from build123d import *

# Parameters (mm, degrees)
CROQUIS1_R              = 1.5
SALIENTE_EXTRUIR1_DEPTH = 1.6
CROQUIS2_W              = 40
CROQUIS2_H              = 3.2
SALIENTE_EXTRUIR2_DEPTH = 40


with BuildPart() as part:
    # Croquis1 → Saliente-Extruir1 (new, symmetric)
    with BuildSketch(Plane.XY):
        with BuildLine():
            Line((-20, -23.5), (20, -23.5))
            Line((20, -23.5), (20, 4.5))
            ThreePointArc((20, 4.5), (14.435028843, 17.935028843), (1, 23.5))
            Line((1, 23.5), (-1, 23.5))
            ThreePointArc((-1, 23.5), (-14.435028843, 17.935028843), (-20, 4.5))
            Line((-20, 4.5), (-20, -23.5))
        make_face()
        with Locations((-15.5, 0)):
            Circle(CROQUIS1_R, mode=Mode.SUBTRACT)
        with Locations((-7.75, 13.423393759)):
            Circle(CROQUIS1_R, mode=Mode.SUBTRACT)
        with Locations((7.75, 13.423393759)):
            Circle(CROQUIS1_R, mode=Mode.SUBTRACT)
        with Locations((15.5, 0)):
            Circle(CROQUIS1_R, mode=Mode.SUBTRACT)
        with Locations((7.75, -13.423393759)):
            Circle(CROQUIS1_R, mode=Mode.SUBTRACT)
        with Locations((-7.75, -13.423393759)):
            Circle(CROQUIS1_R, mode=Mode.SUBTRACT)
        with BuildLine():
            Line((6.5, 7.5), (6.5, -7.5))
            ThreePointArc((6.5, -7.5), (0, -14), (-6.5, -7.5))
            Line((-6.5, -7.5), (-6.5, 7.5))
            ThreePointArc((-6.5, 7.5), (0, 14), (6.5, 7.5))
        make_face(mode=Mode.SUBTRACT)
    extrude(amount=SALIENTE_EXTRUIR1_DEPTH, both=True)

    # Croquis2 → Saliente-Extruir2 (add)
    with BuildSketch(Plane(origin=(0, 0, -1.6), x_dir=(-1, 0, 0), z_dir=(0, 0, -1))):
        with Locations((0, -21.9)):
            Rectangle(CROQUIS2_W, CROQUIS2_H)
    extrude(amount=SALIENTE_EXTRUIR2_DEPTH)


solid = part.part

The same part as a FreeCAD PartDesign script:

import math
import FreeCAD as App
import Part
import Sketcher
Q = App.Units.Quantity

doc = App.newDocument("Part")
params = doc.addObject("Spreadsheet::Sheet", "Params")
for row, (alias, value) in enumerate([
    ("sketch1_diameter", "3 mm"),
    ("sketch1_radius", "19 mm"),
    ("sketch1_radius2", "6.5 mm"),
    ("sketch1_width", "40 mm"),
    ("sketch1_height", "28 mm"),
    ("pad1_length", "3.2 mm"),
    ("sketch2_width", "40 mm"),
    ("sketch2_height", "3.2 mm"),
    ("pad2_length", "40 mm"),
], start=1):
    params.set(f"A{row}", alias)
    params.set(f"B{row}", "=" + value)
    params.setAlias(f"B{row}", alias)

body = doc.addObject("PartDesign::Body", "Body")

sketch1 = body.newObject("Sketcher::SketchObject", "Sketch")
sketch1.AttachmentSupport = (doc.getObject("XY_Plane"), [""])
sketch1.MapMode = "FlatFace"
sketch1.addGeometry([
    Part.LineSegment(App.Vector(-20, -23.5, 0), App.Vector(20, -23.5, 0)),
    Part.LineSegment(App.Vector(20, -23.5, 0), App.Vector(20, 4.5, 0)),
    Part.ArcOfCircle(Part.Circle(App.Vector(1, 4.5, 0), App.Vector(0, 0, 1), 19), math.radians(0), math.radians(90)),
    Part.LineSegment(App.Vector(1, 23.5, 0), App.Vector(-1, 23.5, 0)),
    Part.ArcOfCircle(Part.Circle(App.Vector(-1, 4.5, 0), App.Vector(0, 0, 1), 19), math.radians(90), math.radians(180)),
    Part.LineSegment(App.Vector(-20, 4.5, 0), App.Vector(-20, -23.5, 0)),
    Part.Circle(App.Vector(-7.8, -13.4, 0), App.Vector(0, 0, 1), 1.5),
    Part.Circle(App.Vector(7.8, -13.4, 0), App.Vector(0, 0, 1), 1.5),
    Part.Circle(App.Vector(-15.5, 0, 0), App.Vector(0, 0, 1), 1.5),
    Part.Circle(App.Vector(-7.8, 13.4, 0), App.Vector(0, 0, 1), 1.5),
    Part.ArcOfCircle(Part.Circle(App.Vector(0, 7.5, 0), App.Vector(0, 0, 1), 6.5), math.radians(0), math.radians(180)),
    Part.LineSegment(App.Vector(6.5, 7.5, 0), App.Vector(6.5, -7.5, 0)),
    Part.ArcOfCircle(Part.Circle(App.Vector(0, -7.5, 0), App.Vector(0, 0, 1), 6.5), math.radians(180), math.radians(360)),
    Part.LineSegment(App.Vector(-6.5, -7.5, 0), App.Vector(-6.5, 7.5, 0)),
    Part.Circle(App.Vector(15.5, 0, 0), App.Vector(0, 0, 1), 1.5),
    Part.Circle(App.Vector(7.8, 13.4, 0), App.Vector(0, 0, 1), 1.5),
], False)
sketch1.addConstraint([
    Sketcher.Constraint("Coincident", 0, 2, 1, 1),
    Sketcher.Constraint("Tangent", 1, 2, 2, 1),
    Sketcher.Constraint("Tangent", 2, 2, 3, 1),
    Sketcher.Constraint("Tangent", 3, 2, 4, 1),
    Sketcher.Constraint("Tangent", 4, 2, 5, 1),
    Sketcher.Constraint("Coincident", 5, 2, 0, 1),
    Sketcher.Constraint("Tangent", 10, 1, 11, 1),
    Sketcher.Constraint("Tangent", 11, 2, 12, 2),
    Sketcher.Constraint("Tangent", 12, 1, 13, 1),
    Sketcher.Constraint("Tangent", 13, 2, 10, 2),
    Sketcher.Constraint("Horizontal", 0),
    Sketcher.Constraint("Vertical", 1),
    Sketcher.Constraint("Horizontal", 3),
    Sketcher.Constraint("Vertical", 5),
    Sketcher.Constraint("Vertical", 11),
    Sketcher.Constraint("Vertical", 13),
    Sketcher.Constraint("Equal", 2, 4),
    Sketcher.Constraint("Equal", 6, 7),
    Sketcher.Constraint("Equal", 7, 8),
    Sketcher.Constraint("Equal", 8, 9),
    Sketcher.Constraint("Equal", 9, 14),
    Sketcher.Constraint("Equal", 14, 15),
    Sketcher.Constraint("Symmetric", 7, 3, 9, 3, -1, 1),
    Sketcher.Constraint("Symmetric", 10, 3, 12, 3, -1, 1),
    Sketcher.Constraint("Symmetric", 8, 3, 14, 3, -1, 1),
    Sketcher.Constraint("Symmetric", 6, 3, 15, 3, -1, 1),
    Sketcher.Constraint("Symmetric", 6, 3, 7, 3, -2),
    Sketcher.Constraint("PointOnObject", 8, 3, -1),
    Sketcher.Constraint("Diameter", 6, Q("3 mm")),
    Sketcher.Constraint("Radius", 2, Q("19 mm")),
    Sketcher.Constraint("Radius", 10, Q("6.5 mm")),
    Sketcher.Constraint("DistanceX", 0, 1, 0, 2, Q("40 mm")),
    Sketcher.Constraint("DistanceY", 1, 1, 1, 2, Q("28 mm")),
    Sketcher.Constraint("DistanceY", 11, 2, 11, 1, Q("15 mm")),
    Sketcher.Constraint("DistanceX", -1, 1, 2, 3, Q("1 mm")),
    Sketcher.Constraint("DistanceY", 2, 3, 10, 3, Q("3 mm")),
    Sketcher.Constraint("DistanceX", 10, 1, 14, 3, Q("9 mm")),
    Sketcher.Constraint("DistanceX", 6, 3, 7, 3, Q("15.5 mm")),
    Sketcher.Constraint("DistanceY", 6, 3, -1, 1, Q("13.423394 mm")),
])
sketch1.setExpression("Constraints[28]", "Params.sketch1_diameter")
sketch1.setExpression("Constraints[29]", "Params.sketch1_radius")
sketch1.setExpression("Constraints[30]", "Params.sketch1_radius2")
sketch1.setExpression("Constraints[31]", "Params.sketch1_width")
sketch1.setExpression("Constraints[32]", "Params.sketch1_height")
pad1 = body.newObject("PartDesign::Pad", "Pad")
pad1.Profile = sketch1
pad1.setExpression("Length", "Params.pad1_length")
pad1.Midplane = True

sketch2 = body.newObject("Sketcher::SketchObject", "Sketch001")
sketch2.AttachmentSupport = (doc.getObject("XY_Plane"), [""])
sketch2.MapMode = "FlatFace"
sketch2.AttachmentOffset = App.Placement(App.Vector(0, 0, -1.6), App.Rotation())
sketch2.addGeometry([
    Part.LineSegment(App.Vector(20, -20.3, 0), App.Vector(20, -23.5, 0)),
    Part.LineSegment(App.Vector(20, -23.5, 0), App.Vector(-20, -23.5, 0)),
    Part.LineSegment(App.Vector(-20, -23.5, 0), App.Vector(-20, -20.3, 0)),
    Part.LineSegment(App.Vector(-20, -20.3, 0), App.Vector(20, -20.3, 0)),
], False)
sketch2.addConstraint([
    Sketcher.Constraint("Coincident", 0, 2, 1, 1),
    Sketcher.Constraint("Coincident", 1, 2, 2, 1),
    Sketcher.Constraint("Coincident", 2, 2, 3, 1),
    Sketcher.Constraint("Coincident", 3, 2, 0, 1),
    Sketcher.Constraint("Vertical", 0),
    Sketcher.Constraint("Horizontal", 1),
    Sketcher.Constraint("Vertical", 2),
    Sketcher.Constraint("Horizontal", 3),
    Sketcher.Constraint("DistanceX", 1, 2, 1, 1, Q("40 mm")),
    Sketcher.Constraint("DistanceY", 0, 2, 0, 1, Q("3.2 mm")),
    Sketcher.Constraint("DistanceX", -1, 1, 0, 2, Q("20 mm")),
    Sketcher.Constraint("DistanceY", 0, 2, -1, 1, Q("23.5 mm")),
])
sketch2.setExpression("Constraints[8]", "Params.sketch2_width")
sketch2.setExpression("Constraints[9]", "Params.sketch2_height")
pad2 = body.newObject("PartDesign::Pad", "Pad001")
pad2.Profile = sketch2
pad2.setExpression("Length", "Params.pad2_length")
pad2.Reversed = True

doc.recompute()
